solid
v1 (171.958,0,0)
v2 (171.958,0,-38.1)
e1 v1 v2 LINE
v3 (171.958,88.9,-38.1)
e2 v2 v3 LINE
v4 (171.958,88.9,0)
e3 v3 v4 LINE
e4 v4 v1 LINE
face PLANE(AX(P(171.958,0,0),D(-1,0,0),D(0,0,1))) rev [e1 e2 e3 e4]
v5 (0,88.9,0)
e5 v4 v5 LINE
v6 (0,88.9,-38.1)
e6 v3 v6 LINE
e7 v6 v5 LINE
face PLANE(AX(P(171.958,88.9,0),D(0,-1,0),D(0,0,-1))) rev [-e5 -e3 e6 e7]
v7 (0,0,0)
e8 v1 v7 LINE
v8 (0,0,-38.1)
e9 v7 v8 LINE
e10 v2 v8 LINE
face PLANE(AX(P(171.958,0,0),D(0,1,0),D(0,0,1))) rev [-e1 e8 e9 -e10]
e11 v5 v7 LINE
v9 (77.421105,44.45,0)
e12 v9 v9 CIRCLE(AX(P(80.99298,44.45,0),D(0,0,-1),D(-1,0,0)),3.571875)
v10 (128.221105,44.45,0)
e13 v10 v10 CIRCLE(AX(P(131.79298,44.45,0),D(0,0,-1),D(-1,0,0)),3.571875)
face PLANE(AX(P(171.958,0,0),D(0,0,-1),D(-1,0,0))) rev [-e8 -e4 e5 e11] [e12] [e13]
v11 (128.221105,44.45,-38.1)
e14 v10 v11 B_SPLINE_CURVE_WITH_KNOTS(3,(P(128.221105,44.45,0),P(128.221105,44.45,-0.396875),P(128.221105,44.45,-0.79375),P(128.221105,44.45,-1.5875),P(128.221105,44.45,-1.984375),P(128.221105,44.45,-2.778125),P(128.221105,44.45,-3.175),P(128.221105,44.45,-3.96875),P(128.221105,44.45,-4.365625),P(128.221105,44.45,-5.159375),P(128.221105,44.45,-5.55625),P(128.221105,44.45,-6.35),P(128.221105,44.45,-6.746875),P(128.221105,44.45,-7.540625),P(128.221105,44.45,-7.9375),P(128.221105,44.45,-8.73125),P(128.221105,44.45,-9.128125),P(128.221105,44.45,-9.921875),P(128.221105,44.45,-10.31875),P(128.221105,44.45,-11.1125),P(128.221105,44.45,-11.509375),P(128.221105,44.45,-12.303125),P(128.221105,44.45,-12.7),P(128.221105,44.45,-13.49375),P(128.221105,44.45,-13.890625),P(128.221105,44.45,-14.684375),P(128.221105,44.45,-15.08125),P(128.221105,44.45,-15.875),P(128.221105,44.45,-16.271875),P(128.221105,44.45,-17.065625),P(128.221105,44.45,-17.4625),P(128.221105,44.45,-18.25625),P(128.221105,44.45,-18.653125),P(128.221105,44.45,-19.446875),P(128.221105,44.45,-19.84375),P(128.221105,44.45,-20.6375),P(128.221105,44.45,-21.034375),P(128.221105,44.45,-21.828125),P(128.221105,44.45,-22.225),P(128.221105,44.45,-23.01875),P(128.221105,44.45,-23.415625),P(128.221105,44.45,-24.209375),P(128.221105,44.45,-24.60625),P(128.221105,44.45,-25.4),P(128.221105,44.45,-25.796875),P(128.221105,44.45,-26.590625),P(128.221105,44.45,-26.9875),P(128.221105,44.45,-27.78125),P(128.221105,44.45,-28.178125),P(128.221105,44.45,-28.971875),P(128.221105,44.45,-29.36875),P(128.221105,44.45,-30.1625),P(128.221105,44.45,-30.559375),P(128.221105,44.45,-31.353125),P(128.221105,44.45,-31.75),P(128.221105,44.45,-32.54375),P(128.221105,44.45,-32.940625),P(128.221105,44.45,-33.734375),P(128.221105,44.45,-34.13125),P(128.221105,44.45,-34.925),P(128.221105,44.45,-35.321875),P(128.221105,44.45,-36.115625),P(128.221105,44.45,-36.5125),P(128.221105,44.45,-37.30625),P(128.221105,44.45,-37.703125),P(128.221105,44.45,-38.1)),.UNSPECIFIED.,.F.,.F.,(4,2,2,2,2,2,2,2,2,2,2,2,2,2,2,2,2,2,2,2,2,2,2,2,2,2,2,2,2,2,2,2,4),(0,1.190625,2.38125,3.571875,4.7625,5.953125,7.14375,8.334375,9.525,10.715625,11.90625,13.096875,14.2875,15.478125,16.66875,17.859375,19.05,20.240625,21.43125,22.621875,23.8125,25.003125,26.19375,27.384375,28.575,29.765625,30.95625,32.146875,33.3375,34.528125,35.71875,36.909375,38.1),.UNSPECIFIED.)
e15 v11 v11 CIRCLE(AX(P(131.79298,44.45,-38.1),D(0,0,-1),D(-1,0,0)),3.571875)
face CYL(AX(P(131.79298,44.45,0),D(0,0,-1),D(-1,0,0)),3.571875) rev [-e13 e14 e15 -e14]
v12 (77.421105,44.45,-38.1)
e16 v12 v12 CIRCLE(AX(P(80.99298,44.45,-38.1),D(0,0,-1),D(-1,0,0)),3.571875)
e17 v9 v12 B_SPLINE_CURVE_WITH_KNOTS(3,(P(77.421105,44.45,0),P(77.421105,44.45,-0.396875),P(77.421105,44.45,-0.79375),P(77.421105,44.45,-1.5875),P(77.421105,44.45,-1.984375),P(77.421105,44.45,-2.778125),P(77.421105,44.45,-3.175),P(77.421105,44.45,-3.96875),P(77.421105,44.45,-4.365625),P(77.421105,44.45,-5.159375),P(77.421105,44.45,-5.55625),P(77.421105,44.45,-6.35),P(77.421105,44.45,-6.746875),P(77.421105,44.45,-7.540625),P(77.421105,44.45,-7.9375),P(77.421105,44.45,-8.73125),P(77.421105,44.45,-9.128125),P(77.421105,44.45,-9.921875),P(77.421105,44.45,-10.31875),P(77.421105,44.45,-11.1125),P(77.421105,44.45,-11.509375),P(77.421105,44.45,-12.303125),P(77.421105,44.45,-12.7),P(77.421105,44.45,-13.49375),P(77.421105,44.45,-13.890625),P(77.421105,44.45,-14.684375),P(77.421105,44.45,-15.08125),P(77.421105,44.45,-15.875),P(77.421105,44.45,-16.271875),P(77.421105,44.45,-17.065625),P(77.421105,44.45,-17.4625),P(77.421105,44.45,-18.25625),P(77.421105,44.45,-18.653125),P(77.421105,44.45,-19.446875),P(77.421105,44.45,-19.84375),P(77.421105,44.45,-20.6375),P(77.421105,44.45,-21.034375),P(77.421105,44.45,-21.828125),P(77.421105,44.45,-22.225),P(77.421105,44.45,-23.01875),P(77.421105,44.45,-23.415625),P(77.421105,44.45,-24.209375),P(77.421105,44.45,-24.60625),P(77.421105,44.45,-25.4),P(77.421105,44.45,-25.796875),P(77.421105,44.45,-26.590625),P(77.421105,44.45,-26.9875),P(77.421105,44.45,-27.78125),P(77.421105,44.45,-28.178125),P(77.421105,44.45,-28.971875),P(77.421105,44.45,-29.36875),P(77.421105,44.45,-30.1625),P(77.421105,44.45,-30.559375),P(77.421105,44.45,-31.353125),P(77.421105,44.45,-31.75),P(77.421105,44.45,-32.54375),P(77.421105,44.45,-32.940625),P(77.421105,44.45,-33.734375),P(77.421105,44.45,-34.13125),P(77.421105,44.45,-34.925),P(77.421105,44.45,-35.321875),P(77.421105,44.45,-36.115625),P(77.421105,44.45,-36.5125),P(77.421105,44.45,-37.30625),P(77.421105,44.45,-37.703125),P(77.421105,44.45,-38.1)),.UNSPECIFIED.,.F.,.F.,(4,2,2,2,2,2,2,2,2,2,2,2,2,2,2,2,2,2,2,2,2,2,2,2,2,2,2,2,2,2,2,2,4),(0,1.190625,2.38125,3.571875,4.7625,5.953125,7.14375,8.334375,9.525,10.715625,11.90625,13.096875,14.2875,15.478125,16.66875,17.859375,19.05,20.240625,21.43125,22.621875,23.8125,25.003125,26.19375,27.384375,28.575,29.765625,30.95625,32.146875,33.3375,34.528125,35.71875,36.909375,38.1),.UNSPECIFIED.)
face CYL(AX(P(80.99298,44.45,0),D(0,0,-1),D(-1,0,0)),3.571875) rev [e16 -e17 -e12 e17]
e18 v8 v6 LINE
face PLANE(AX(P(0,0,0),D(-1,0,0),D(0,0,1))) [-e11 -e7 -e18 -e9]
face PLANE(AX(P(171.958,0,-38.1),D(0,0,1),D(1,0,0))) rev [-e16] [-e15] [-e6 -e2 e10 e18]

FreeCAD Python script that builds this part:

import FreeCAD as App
import Part
import Sketcher
from FreeCAD import Vector
Q = App.Units.Quantity

doc = App.newDocument("Part")
body = doc.addObject("PartDesign::Body", "Body")

# Sketch on YZ plane
sketch1 = doc.addObject("Sketcher::SketchObject", "Sketch")
body.addObject(sketch1)
sketch1.AttachmentSupport = (doc.YZ_Plane, [""])
sketch1.MapMode = "FlatFace"
sketch1.addGeometry(Part.LineSegment(Vector(89, 0, 0), Vector(0, 0, 0)), False)
sketch1.addGeometry(Part.LineSegment(Vector(0, 0, 0), Vector(0, -38, 0)), False)
sketch1.addGeometry(Part.LineSegment(Vector(0, -38, 0), Vector(89, -38, 0)), False)
sketch1.addGeometry(Part.LineSegment(Vector(89, -38, 0), Vector(89, 0, 0)), False)
sketch1.addConstraint(Sketcher.Constraint("Coincident", 0, 2, 1, 1))
sketch1.addConstraint(Sketcher.Constraint("Coincident", 1, 2, 2, 1))
sketch1.addConstraint(Sketcher.Constraint("Coincident", 2, 2, 3, 1))
sketch1.addConstraint(Sketcher.Constraint("Coincident", 3, 2, 0, 1))
sketch1.addConstraint(Sketcher.Constraint("Horizontal", 0))
sketch1.addConstraint(Sketcher.Constraint("Vertical", 1))
sketch1.addConstraint(Sketcher.Constraint("Horizontal", 2))
sketch1.addConstraint(Sketcher.Constraint("Vertical", 3))
sketch1.addConstraint(Sketcher.Constraint("Coincident", 0, 2, -1, 1))
sketch1.addConstraint(Sketcher.Constraint("DistanceX", 0, 2, 0, 1, Q("3.5 in")))
sketch1.addConstraint(Sketcher.Constraint("DistanceY", 1, 2, 1, 1, Q("1.5 in")))
pad1 = doc.addObject("PartDesign::Pad", "Pad")
body.addObject(pad1)
pad1.Profile = sketch1
pad1.Length = Q("6.77 in")

# Sketch on XY plane
sketch2 = doc.addObject("Sketcher::SketchObject", "Sketch001")
body.addObject(sketch2)
sketch2.AttachmentSupport = (doc.XY_Plane, [""])
sketch2.MapMode = "FlatFace"
sketch2.AttachmentOffset = App.Placement(Vector(0, 0, -1.5 * 25.4), App.Rotation())
sketch2.addGeometry(Part.Circle(Vector(131.8, 44.5, 0), Vector(0, 0, 1), 3.6), False)
sketch2.addGeometry(Part.Circle(Vector(81, 44.5, 0), Vector(0, 0, 1), 3.6), False)
sketch2.addConstraint(Sketcher.Constraint("Equal", 0, 1))
sketch2.addConstraint(Sketcher.Constraint("Horizontal", 0, 3, 1, 3))
sketch2.addConstraint(Sketcher.Constraint("Diameter", 0, Q("0.28125 in")))
sketch2.addConstraint(Sketcher.Constraint("DistanceX", 1, 3, 0, 3, Q("2 in")))
sketch2.addConstraint(Sketcher.Constraint("DistanceY", -1, 1, 0, 3, Q("1.75 in")))
sketch2.addConstraint(Sketcher.Constraint("DistanceX", -1, 1, 0, 3, Q("5.1887 in")))
pocket1 = doc.addObject("PartDesign::Pocket", "Pocket")
body.addObject(pocket1)
pocket1.Profile = sketch2
pocket1.Type = "ThroughAll"
pocket1.Reversed = True

doc.recompute()
